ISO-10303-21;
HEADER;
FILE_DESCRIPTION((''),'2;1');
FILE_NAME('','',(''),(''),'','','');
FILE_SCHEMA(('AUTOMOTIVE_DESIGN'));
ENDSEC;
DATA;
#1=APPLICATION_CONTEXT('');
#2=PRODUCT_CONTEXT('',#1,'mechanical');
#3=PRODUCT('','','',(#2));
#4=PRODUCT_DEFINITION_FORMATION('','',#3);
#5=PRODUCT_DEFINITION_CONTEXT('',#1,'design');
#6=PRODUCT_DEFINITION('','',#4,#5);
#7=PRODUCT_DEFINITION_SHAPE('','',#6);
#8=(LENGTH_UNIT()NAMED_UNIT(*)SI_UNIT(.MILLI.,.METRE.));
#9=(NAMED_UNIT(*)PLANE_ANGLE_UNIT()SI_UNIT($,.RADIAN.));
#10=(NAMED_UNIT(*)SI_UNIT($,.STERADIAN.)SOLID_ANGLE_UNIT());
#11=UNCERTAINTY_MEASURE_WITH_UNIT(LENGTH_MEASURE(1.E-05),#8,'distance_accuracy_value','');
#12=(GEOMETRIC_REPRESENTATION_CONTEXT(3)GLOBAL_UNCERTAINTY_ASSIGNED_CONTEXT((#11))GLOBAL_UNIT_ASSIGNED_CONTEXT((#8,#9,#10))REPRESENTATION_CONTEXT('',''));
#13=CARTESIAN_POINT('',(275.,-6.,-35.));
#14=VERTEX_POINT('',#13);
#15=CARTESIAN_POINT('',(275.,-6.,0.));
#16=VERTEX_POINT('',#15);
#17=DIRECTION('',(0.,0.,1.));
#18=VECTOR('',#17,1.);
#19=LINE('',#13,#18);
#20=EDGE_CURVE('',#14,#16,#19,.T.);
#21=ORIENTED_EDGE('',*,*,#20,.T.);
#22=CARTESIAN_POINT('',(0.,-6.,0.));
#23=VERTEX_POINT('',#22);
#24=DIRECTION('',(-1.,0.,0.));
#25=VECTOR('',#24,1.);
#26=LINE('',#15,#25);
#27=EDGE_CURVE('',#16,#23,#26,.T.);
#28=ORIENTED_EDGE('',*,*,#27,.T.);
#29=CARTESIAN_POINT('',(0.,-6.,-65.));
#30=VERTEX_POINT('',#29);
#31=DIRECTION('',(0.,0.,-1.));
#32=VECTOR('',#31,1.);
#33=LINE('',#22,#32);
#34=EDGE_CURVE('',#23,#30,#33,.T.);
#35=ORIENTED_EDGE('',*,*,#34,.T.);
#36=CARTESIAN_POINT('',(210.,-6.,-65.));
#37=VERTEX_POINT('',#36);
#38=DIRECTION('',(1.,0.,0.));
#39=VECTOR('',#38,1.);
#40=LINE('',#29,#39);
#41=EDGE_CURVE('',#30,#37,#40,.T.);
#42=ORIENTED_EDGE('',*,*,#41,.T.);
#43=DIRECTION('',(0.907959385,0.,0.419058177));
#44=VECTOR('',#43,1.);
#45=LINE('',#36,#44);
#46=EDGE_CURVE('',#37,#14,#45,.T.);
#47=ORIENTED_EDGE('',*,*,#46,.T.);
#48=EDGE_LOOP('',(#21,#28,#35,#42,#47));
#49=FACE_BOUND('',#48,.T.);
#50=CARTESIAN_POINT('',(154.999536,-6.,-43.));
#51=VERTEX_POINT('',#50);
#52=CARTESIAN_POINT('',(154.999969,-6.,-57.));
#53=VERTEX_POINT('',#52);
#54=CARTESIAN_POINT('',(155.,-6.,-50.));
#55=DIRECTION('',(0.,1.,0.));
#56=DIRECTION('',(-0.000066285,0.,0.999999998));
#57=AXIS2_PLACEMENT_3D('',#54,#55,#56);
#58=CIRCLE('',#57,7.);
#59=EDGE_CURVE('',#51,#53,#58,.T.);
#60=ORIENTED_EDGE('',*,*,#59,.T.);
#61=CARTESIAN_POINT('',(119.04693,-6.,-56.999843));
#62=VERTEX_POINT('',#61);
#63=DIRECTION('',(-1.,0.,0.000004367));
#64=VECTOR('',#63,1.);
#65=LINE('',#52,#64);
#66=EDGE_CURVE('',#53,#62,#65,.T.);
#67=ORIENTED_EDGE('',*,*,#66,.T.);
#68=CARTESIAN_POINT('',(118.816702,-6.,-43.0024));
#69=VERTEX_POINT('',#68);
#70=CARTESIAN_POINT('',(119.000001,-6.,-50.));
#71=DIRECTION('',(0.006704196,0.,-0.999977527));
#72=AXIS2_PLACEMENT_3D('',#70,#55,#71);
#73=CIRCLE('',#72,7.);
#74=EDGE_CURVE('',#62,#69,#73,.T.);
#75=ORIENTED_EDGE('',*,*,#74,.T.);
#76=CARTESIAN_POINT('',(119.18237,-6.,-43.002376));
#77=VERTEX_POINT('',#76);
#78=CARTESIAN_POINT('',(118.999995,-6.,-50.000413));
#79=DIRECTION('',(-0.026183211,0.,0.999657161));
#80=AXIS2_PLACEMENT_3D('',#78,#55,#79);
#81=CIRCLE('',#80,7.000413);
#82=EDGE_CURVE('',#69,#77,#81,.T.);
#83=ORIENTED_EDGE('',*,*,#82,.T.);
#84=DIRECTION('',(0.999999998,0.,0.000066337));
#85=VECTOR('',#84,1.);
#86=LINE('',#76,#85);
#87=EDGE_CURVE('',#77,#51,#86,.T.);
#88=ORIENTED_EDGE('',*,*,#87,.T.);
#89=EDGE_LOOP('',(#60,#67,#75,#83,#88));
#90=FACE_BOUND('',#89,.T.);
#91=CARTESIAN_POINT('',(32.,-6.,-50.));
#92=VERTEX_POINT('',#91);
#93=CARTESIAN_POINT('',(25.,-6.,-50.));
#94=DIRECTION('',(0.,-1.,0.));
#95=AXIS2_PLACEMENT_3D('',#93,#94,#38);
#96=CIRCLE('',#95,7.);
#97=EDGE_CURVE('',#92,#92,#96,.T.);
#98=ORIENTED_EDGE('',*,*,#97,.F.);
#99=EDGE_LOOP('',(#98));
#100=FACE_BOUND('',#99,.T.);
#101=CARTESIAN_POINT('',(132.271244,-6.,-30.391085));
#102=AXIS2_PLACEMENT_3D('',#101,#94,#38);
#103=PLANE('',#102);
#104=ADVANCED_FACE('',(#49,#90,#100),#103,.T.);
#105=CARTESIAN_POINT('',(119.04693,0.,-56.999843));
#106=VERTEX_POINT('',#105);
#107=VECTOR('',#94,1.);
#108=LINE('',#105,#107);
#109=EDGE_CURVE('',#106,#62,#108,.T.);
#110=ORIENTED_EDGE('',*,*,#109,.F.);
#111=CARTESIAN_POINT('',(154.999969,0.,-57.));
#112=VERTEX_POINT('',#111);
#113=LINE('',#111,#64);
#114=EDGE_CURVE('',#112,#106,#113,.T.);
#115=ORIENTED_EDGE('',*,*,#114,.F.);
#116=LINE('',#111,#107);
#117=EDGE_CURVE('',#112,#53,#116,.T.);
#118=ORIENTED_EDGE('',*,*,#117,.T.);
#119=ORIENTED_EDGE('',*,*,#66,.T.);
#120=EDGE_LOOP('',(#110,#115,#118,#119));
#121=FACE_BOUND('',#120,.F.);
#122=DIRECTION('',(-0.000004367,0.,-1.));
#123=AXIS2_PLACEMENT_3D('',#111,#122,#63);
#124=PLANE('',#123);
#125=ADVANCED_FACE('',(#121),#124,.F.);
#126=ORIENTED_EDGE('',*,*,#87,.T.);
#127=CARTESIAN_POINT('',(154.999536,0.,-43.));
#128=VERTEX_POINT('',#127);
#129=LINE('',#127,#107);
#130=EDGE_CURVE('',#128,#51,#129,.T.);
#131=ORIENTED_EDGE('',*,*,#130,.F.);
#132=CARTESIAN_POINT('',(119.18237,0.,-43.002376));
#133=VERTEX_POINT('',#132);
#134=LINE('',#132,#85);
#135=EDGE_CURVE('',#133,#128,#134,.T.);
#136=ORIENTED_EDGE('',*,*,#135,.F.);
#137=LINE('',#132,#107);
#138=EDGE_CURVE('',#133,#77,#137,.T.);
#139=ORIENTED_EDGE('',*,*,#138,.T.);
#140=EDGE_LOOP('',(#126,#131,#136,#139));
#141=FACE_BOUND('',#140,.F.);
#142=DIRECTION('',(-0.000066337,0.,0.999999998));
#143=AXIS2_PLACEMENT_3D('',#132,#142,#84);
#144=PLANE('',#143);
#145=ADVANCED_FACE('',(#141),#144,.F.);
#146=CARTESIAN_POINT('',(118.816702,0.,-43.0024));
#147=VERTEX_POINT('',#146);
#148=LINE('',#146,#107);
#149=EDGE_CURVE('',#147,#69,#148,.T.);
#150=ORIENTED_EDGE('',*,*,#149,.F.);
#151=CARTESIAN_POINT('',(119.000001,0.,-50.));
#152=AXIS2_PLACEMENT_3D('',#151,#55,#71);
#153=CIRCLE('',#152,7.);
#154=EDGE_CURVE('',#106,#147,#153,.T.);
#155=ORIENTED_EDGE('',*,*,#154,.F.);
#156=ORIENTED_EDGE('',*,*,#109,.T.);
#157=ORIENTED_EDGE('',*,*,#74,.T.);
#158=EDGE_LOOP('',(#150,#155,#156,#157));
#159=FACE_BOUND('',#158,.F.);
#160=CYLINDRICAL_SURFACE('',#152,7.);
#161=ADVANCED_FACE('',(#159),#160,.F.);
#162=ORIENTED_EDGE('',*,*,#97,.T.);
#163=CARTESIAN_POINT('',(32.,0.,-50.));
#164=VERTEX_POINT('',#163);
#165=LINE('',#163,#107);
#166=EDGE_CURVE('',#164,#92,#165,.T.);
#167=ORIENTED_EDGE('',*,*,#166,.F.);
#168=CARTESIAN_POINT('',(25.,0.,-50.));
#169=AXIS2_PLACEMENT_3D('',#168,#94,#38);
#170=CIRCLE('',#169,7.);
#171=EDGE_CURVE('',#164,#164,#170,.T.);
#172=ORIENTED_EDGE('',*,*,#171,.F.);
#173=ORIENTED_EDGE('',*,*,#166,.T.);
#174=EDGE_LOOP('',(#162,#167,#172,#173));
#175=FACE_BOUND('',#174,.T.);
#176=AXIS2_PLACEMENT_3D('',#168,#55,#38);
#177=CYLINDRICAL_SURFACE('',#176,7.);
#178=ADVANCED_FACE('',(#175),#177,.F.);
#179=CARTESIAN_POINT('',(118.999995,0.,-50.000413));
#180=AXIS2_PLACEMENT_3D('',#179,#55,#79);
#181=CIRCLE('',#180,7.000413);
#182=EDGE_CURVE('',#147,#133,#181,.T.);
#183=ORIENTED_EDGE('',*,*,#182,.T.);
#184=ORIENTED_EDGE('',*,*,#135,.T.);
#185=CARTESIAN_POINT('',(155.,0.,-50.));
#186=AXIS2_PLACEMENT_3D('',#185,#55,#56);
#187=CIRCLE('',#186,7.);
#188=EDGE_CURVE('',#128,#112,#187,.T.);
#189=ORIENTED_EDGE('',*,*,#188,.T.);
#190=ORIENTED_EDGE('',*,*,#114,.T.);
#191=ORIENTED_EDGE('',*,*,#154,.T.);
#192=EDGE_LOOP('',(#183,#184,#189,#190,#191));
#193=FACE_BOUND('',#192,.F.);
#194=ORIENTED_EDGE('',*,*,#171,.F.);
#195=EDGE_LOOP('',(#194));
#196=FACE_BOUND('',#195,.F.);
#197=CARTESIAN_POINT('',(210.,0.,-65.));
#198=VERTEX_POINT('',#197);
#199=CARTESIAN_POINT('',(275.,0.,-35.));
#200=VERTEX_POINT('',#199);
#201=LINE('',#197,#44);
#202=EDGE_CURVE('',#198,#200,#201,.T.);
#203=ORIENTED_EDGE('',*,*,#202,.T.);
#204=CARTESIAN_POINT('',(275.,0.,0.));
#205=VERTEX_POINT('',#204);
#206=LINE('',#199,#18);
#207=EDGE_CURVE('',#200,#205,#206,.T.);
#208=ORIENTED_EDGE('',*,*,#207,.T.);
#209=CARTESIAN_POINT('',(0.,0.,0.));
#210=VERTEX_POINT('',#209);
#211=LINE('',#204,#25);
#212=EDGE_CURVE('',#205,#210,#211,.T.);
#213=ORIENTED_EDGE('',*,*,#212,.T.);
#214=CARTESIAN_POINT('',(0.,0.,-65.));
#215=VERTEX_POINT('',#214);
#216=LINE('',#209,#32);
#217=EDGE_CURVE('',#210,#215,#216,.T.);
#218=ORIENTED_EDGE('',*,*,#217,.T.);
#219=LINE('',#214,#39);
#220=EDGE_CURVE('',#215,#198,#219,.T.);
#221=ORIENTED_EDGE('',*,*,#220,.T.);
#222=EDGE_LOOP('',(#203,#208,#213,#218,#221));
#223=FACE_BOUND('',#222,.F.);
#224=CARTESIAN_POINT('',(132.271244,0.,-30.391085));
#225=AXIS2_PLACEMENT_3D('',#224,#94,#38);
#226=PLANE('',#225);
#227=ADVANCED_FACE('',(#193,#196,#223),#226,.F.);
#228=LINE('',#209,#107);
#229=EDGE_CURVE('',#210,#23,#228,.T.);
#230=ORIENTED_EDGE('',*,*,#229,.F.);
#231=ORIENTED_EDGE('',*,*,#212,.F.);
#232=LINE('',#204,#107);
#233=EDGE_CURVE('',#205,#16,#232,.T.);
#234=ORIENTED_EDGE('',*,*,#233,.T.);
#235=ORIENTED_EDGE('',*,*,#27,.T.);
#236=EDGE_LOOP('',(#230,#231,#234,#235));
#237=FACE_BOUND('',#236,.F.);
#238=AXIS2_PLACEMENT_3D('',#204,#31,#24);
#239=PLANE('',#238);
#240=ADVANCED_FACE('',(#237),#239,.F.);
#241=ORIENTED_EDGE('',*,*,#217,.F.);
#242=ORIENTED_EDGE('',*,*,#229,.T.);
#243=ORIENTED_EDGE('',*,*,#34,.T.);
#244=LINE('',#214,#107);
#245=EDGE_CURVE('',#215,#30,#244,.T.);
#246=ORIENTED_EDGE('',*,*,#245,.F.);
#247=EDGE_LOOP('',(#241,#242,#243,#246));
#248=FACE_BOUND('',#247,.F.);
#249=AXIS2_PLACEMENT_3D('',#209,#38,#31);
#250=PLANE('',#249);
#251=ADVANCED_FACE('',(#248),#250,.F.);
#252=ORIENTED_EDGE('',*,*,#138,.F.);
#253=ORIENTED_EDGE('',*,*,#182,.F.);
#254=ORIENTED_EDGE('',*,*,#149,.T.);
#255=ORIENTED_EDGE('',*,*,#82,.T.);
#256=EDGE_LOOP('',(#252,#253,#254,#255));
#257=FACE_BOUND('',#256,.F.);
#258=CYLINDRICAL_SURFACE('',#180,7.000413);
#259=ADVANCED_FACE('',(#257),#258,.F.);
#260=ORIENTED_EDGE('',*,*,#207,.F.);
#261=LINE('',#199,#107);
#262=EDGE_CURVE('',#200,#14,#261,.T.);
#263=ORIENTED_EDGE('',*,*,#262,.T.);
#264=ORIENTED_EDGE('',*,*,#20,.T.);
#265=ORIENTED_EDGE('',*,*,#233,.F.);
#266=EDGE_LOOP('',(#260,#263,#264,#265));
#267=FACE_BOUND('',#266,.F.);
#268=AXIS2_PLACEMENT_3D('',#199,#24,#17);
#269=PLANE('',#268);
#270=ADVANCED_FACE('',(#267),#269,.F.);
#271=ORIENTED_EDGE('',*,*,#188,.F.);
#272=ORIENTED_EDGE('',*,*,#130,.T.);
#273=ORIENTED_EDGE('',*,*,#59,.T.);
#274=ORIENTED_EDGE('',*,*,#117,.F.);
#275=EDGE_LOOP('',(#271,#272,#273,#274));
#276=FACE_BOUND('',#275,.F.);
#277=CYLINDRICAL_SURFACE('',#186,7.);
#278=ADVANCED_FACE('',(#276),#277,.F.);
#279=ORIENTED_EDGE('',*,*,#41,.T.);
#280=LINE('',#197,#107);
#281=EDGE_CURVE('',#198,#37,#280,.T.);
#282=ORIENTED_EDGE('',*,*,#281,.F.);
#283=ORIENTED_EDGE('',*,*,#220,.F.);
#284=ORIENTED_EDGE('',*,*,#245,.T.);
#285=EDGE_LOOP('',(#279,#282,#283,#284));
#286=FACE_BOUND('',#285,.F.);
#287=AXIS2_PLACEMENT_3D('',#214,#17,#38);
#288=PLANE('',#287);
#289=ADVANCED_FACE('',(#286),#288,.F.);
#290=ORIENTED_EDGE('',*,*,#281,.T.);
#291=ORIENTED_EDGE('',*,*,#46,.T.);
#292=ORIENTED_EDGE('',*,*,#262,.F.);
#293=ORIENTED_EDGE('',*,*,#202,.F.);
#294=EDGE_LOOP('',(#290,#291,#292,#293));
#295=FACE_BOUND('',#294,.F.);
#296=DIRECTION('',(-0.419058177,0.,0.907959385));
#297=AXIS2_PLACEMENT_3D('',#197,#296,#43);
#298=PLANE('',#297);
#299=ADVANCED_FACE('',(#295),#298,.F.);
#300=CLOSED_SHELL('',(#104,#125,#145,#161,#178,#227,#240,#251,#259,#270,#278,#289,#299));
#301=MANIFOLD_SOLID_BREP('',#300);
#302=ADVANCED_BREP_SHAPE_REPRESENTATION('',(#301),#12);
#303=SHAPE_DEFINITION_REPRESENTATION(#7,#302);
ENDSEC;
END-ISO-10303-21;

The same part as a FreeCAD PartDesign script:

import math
import FreeCAD as App
import Part
import Sketcher
Q = App.Units.Quantity


def add_polygon(sketch, points):
    """Adds a closed chain of lines whose ends are joined by coincident constraints."""
    first, n = sketch.GeometryCount, len(points)
    for a, b in zip(points, points[1:] + points[:1]):
        sketch.addGeometry(Part.LineSegment(App.Vector(*a, 0), App.Vector(*b, 0)), False)
    for i in range(n):
        sketch.addConstraint(Sketcher.Constraint("Coincident", first + i, 2, first + (i + 1) % n, 1))

doc = App.newDocument("Part")
body = doc.addObject("PartDesign::Body", "Body")

sketch1 = body.newObject("Sketcher::SketchObject", "Sketch")
sketch1.AttachmentSupport = (doc.getObject("XZ_Plane"), [""])
sketch1.MapMode = "FlatFace"
add_polygon(sketch1, [(275, 0), (0, 0), (0, -65), (210, -65), (275, -35)])
sketch1.addGeometry(Part.Circle(App.Vector(25, -50, 0), App.Vector(0, 0, 1), 7), False)
sketch1.addGeometry(Part.LineSegment(App.Vector(119.18237, -43.002376, 0), App.Vector(154.999536, -43, 0)), False)
sketch1.addGeometry(Part.ArcOfCircle(Part.Circle(App.Vector(155, -50, 0), App.Vector(0, 0, 1), 7), math.radians(-90.000254), math.radians(90.003798)), False)
sketch1.addGeometry(Part.LineSegment(App.Vector(154.999969, -57, 0), App.Vector(119.04693, -56.999843, 0)), False)
sketch1.addGeometry(Part.ArcOfCircle(Part.Circle(App.Vector(119.000001, -50, 0), App.Vector(0, 0, 1), 7), math.radians(91.500491), math.radians(270.384125)), False)
sketch1.addGeometry(Part.ArcOfCircle(Part.Circle(App.Vector(118.999995, -50.000413, 0), App.Vector(0, 0, 1), 7.000413), math.radians(88.507162), math.radians(91.500359)), False)
sketch1.addConstraint(Sketcher.Constraint("Tangent", 6, 2, 7, 2))
sketch1.addConstraint(Sketcher.Constraint("Tangent", 7, 1, 8, 1))
sketch1.addConstraint(Sketcher.Constraint("Coincident", 8, 2, 9, 2))
sketch1.addConstraint(Sketcher.Constraint("Coincident", 9, 1, 10, 2))
sketch1.addConstraint(Sketcher.Constraint("Coincident", 10, 1, 6, 1))
sketch1.addConstraint(Sketcher.Constraint("Horizontal", 0))
sketch1.addConstraint(Sketcher.Constraint("Vertical", 1))
sketch1.addConstraint(Sketcher.Constraint("Horizontal", 2))
sketch1.addConstraint(Sketcher.Constraint("Vertical", 4))
sketch1.addConstraint(Sketcher.Constraint("Coincident", 0, 2, -1, 1))
sketch1.addConstraint(Sketcher.Constraint("Equal", 5, 7))
sketch1.addConstraint(Sketcher.Constraint("Equal", 7, 9))
sketch1.addConstraint(Sketcher.Constraint("Horizontal", 5, 3, 7, 3))
sketch1.addConstraint(Sketcher.Constraint("Horizontal", 7, 3, 9, 3))
sketch1.addConstraint(Sketcher.Constraint("Diameter", 5, Q("14 mm")))
sketch1.addConstraint(Sketcher.Constraint("DistanceX", 0, 2, 0, 1, Q("275 mm")))
sketch1.addConstraint(Sketcher.Constraint("DistanceX", 2, 1, 2, 2, Q("210 mm")))
sketch1.addConstraint(Sketcher.Constraint("DistanceY", 1, 2, 1, 1, Q("65 mm")))
sketch1.addConstraint(Sketcher.Constraint("DistanceY", 4, 1, 4, 2, Q("35 mm")))
sketch1.addConstraint(Sketcher.Constraint("DistanceX", -1, 1, 5, 3, Q("25 mm")))
sketch1.addConstraint(Sketcher.Constraint("DistanceY", 5, 3, -1, 1, Q("50 mm")))
sketch1.addConstraint(Sketcher.Constraint("DistanceX", -1, 1, 7, 3, Q("155 mm")))
sketch1.addConstraint(Sketcher.Constraint("DistanceX", -1, 1, 9, 3, Q("119.000001 mm")))
sketch1.addConstraint(Sketcher.Constraint("Radius", 10, Q("7.000413 mm")))
sketch1.addConstraint(Sketcher.Constraint("DistanceY", 9, 1, -1, 1, Q("43.0024 mm")))
sketch1.addConstraint(Sketcher.Constraint("Distance", 8, Q("35.953039 mm")))
sketch1.addConstraint(Sketcher.Constraint("DistanceX", -1, 1, 10, 1, Q("119.18237 mm")))
sketch1.addConstraint(Sketcher.Constraint("DistanceX", 10, 3, 6, 2, Q("35.999541 mm")))
pad1 = body.newObject("PartDesign::Pad", "Pad")
pad1.Profile = sketch1
pad1.Length = 6

doc.recompute()
